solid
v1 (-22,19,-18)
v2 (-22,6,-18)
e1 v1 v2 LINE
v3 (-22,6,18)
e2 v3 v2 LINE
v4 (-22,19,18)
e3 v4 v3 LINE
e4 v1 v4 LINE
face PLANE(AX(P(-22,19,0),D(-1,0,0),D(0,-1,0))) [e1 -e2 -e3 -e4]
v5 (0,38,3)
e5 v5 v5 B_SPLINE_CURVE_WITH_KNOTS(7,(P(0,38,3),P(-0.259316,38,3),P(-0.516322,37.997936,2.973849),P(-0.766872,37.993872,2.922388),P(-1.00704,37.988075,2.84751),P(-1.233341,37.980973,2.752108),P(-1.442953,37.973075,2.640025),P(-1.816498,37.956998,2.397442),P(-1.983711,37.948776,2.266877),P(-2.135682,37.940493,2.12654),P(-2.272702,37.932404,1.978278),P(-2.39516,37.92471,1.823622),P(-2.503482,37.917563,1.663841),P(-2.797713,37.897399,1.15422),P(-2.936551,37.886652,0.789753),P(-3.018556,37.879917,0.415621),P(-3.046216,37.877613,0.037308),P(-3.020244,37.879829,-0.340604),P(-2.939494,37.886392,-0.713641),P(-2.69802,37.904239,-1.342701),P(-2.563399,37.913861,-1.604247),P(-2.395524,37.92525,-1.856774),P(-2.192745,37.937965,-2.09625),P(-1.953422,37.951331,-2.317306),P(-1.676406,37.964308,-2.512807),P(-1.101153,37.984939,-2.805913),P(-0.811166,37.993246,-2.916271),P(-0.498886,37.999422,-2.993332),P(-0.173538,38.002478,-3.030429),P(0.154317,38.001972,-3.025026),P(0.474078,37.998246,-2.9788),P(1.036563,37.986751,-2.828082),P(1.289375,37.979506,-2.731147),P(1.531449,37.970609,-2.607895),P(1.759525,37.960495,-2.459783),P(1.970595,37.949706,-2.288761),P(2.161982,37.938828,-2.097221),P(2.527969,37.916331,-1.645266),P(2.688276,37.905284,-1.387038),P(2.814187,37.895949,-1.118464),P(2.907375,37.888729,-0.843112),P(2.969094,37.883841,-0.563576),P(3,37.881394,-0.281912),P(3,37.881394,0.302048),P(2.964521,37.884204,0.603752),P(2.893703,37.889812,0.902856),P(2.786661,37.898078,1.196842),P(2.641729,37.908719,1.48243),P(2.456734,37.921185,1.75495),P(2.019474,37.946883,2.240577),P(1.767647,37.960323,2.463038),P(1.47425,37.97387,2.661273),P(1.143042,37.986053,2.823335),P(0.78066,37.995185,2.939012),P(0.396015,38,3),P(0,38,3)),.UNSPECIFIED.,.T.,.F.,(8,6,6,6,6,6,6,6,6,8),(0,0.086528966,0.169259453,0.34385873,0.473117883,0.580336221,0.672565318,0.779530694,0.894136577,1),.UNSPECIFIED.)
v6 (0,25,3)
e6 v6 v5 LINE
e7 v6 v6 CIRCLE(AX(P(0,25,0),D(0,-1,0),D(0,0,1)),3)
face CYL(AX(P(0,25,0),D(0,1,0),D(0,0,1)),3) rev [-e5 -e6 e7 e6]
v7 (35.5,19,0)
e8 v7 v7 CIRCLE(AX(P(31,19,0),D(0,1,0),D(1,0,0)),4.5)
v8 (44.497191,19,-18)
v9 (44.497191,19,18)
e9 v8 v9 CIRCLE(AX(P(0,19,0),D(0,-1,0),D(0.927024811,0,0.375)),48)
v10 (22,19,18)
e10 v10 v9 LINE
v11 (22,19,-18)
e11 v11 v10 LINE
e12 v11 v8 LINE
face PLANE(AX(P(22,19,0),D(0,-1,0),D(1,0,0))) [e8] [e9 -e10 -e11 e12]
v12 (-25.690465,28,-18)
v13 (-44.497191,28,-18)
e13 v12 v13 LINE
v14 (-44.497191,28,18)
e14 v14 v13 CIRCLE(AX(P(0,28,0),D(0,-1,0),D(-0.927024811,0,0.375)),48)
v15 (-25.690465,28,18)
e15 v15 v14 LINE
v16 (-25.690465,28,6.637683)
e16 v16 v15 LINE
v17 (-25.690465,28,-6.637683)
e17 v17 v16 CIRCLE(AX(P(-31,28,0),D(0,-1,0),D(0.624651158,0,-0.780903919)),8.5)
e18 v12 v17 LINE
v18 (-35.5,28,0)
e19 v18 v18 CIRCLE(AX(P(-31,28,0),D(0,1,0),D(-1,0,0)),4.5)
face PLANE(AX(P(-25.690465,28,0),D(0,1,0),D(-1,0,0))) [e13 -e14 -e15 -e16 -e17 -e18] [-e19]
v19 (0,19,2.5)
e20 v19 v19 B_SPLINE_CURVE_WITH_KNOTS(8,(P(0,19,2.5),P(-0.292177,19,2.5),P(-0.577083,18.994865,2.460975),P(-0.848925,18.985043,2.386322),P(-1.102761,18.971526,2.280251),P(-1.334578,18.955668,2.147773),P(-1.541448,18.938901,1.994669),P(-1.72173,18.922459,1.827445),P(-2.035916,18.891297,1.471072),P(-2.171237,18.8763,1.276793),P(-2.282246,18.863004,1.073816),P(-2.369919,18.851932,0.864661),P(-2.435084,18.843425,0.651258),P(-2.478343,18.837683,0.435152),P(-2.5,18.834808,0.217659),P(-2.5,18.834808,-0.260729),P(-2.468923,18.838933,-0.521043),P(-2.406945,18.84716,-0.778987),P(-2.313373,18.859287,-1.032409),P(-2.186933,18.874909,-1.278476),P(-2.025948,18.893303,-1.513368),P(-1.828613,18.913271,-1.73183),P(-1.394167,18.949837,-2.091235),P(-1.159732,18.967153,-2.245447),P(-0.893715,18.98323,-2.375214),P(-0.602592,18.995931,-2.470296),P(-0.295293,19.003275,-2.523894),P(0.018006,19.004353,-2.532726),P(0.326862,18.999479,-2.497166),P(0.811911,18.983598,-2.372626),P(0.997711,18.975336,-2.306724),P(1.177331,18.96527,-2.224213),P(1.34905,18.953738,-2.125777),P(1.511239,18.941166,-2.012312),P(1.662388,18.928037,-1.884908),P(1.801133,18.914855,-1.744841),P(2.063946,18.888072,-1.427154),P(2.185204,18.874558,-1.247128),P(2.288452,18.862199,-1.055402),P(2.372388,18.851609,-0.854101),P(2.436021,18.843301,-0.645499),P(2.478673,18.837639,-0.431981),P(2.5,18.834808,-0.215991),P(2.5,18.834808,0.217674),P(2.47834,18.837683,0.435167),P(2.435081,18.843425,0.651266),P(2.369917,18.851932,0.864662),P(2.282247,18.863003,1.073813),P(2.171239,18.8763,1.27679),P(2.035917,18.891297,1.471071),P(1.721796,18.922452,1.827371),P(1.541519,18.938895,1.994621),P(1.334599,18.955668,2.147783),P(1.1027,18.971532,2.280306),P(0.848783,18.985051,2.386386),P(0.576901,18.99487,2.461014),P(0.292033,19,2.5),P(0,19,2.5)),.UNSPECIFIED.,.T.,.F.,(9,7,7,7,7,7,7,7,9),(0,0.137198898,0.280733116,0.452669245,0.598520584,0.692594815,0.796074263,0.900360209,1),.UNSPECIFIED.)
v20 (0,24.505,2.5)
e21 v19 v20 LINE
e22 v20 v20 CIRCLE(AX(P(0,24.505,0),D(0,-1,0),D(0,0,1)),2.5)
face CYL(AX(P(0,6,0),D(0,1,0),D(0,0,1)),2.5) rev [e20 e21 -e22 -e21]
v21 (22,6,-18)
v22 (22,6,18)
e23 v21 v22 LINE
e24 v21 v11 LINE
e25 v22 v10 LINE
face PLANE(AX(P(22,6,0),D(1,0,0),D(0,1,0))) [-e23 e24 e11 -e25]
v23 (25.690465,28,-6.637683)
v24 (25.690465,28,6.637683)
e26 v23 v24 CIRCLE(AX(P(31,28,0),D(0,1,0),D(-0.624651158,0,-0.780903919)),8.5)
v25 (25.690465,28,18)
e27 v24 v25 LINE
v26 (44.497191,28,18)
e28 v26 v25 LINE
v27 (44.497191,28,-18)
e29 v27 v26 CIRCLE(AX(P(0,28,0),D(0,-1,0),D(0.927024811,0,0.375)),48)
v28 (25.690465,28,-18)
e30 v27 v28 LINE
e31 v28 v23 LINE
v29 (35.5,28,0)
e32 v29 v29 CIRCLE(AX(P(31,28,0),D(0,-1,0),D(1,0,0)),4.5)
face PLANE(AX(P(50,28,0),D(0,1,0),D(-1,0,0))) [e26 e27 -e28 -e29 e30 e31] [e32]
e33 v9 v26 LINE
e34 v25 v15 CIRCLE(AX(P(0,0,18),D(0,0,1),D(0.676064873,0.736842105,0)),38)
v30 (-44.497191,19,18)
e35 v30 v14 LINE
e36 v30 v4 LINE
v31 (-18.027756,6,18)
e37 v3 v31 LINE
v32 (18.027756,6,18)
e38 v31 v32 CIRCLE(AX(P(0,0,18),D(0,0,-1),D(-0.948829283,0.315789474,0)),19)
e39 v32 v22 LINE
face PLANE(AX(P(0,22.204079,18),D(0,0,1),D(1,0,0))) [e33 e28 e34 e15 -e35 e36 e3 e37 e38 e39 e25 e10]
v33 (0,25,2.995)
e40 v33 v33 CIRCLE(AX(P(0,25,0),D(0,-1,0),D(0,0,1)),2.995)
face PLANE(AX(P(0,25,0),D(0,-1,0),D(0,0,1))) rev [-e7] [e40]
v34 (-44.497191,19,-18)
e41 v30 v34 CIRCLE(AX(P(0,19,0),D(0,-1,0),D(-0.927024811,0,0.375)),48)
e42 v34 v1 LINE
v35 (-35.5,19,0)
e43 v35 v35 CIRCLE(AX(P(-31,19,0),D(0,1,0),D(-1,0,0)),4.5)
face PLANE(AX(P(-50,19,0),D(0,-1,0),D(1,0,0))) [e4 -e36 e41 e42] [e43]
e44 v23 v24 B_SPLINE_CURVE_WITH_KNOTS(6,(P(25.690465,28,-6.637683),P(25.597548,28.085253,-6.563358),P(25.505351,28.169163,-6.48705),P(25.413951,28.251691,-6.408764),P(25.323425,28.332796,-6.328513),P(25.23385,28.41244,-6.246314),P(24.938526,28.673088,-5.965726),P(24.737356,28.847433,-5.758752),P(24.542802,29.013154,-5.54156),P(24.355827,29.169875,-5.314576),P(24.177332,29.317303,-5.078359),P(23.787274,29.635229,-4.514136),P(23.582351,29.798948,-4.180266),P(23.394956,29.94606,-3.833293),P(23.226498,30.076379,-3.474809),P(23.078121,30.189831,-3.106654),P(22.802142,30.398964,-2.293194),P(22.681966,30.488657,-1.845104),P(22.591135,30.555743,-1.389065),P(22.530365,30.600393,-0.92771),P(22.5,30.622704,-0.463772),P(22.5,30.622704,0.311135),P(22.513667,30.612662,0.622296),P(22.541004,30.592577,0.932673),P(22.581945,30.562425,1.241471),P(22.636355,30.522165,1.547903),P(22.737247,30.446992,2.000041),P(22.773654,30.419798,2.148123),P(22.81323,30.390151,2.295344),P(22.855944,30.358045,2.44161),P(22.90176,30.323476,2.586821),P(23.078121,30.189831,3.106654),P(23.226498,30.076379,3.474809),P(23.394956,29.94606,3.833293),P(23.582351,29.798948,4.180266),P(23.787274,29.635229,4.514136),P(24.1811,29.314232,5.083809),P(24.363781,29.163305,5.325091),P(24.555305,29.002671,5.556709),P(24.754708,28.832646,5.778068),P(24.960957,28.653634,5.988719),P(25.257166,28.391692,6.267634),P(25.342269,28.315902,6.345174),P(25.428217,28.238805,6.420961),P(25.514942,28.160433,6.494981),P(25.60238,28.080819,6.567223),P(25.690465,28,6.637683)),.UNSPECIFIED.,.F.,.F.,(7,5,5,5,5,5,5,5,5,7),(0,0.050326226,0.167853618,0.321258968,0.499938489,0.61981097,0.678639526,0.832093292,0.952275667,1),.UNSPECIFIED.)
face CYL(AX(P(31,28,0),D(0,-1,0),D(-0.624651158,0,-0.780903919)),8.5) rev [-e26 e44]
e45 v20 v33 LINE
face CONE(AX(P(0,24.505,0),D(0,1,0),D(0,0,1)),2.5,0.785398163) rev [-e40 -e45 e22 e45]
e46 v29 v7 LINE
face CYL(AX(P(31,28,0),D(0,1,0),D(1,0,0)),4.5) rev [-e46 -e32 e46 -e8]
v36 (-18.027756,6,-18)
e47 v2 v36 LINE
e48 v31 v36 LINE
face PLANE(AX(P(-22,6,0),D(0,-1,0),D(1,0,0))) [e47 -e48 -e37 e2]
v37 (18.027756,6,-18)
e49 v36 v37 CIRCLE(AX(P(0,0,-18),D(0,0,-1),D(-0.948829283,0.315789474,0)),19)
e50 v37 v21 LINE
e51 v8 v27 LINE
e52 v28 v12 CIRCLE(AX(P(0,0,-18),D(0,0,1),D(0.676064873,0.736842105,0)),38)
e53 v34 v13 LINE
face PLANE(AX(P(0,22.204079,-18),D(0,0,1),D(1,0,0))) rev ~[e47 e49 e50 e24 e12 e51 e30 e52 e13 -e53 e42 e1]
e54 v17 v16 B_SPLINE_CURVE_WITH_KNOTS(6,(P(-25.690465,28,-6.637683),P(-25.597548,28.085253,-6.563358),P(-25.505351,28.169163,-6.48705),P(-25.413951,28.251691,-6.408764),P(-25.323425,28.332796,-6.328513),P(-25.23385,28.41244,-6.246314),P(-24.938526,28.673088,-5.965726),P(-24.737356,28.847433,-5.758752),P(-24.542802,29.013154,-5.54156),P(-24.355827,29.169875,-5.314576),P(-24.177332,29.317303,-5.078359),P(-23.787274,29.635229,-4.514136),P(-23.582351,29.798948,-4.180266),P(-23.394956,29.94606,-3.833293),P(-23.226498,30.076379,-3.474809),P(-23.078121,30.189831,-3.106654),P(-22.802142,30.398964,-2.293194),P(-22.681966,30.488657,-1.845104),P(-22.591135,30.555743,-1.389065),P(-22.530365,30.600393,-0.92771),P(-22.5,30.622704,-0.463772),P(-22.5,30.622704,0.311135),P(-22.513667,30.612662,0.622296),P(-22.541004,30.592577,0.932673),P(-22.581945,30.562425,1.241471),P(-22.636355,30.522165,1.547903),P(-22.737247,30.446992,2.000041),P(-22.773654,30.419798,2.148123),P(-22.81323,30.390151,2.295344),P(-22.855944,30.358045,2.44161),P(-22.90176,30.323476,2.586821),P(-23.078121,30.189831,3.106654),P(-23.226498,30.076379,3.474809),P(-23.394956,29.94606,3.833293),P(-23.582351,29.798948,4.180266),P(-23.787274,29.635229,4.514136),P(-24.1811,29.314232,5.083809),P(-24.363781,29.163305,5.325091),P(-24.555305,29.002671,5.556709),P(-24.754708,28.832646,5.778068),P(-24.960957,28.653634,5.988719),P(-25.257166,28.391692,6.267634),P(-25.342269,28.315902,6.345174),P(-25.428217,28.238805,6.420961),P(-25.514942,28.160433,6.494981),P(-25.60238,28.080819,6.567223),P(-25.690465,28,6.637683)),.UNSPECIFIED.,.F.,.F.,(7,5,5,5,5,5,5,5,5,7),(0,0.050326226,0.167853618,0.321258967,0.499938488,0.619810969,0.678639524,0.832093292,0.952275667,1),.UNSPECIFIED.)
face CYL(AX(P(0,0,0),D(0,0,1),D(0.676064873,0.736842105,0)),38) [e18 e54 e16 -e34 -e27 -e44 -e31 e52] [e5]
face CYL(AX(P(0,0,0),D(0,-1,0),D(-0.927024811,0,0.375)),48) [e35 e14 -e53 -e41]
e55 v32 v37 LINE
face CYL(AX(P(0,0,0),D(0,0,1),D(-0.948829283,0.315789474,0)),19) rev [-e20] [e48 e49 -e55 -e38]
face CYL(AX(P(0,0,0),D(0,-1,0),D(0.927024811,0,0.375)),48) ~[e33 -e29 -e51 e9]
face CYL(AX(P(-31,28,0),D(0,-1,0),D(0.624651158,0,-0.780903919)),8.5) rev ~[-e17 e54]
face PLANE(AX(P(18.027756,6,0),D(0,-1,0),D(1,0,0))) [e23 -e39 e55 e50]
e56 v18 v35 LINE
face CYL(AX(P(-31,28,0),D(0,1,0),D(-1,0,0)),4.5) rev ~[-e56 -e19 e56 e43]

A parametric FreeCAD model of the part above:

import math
import FreeCAD as App
import Part
import Sketcher

V = App.Vector
Q = App.Units.Quantity


def add_polygon(sketch, points):
    """Adds a closed chain of lines whose ends are joined by coincident constraints."""
    first, n = sketch.GeometryCount, len(points)
    for a, b in zip(points, points[1:] + points[:1]):
        sketch.addGeometry(Part.LineSegment(App.Vector(*a, 0), App.Vector(*b, 0)), False)
    for i in range(n):
        sketch.addConstraint(Sketcher.Constraint("Coincident", first + i, 2, first + (i + 1) % n, 1))

doc = App.newDocument("Part")
body = doc.addObject("PartDesign::Body", "Body")

sketch1 = body.newObject("Sketcher::SketchObject", "Sketch")
sketch1.AttachmentSupport = (doc.getObject("XY_Plane"), [""])
sketch1.MapMode = "FlatFace"
sketch1.addGeometry([
    Part.LineSegment(V(18.027756, 6, 0), V(22, 6, 0)),
    Part.LineSegment(V(22, 6, 0), V(22, 19, 0)),
    Part.LineSegment(V(22, 19, 0), V(50, 19, 0)),
    Part.LineSegment(V(50, 19, 0), V(50, 28, 0)),
    Part.LineSegment(V(50, 28, 0), V(25.690465, 28, 0)),
    Part.ArcOfCircle(Part.Circle(V(0, 0, 0), V(0, 0, 1), 38), math.radians(47.463102), math.radians(132.536898)),
    Part.LineSegment(V(-25.690465, 28, 0), V(-50, 28, 0)),
    Part.LineSegment(V(-50, 28, 0), V(-50, 19, 0)),
    Part.LineSegment(V(-50, 19, 0), V(-22, 19, 0)),
    Part.LineSegment(V(-22, 19, 0), V(-22, 6, 0)),
    Part.LineSegment(V(-22, 6, 0), V(-18.027756, 6, 0)),
    Part.ArcOfCircle(Part.Circle(V(0, 0, 0), V(0, 0, 1), 19), math.radians(18.40848), math.radians(161.59152)),
], False)
sketch1.addConstraint([
    Sketcher.Constraint("Coincident", 0, 2, 1, 1),
    Sketcher.Constraint("Coincident", 1, 2, 2, 1),
    Sketcher.Constraint("Coincident", 2, 2, 3, 1),
    Sketcher.Constraint("Coincident", 3, 2, 4, 1),
    Sketcher.Constraint("Coincident", 4, 2, 5, 1),
    Sketcher.Constraint("Coincident", 5, 2, 6, 1),
    Sketcher.Constraint("Coincident", 6, 2, 7, 1),
    Sketcher.Constraint("Coincident", 7, 2, 8, 1),
    Sketcher.Constraint("Coincident", 8, 2, 9, 1),
    Sketcher.Constraint("Coincident", 9, 2, 10, 1),
    Sketcher.Constraint("Coincident", 10, 2, 11, 2),
    Sketcher.Constraint("Coincident", 11, 1, 0, 1),
    Sketcher.Constraint("Horizontal", 0),
    Sketcher.Constraint("Vertical", 1),
    Sketcher.Constraint("Horizontal", 2),
    Sketcher.Constraint("Vertical", 3),
    Sketcher.Constraint("Horizontal", 4),
    Sketcher.Constraint("Horizontal", 6),
    Sketcher.Constraint("Vertical", 7),
    Sketcher.Constraint("Horizontal", 8),
    Sketcher.Constraint("Vertical", 9),
    Sketcher.Constraint("Horizontal", 10),
    Sketcher.Constraint("Coincident", 5, 3, -1, 1),
    Sketcher.Constraint("Coincident", 11, 3, -1, 1),
    Sketcher.Constraint("Symmetric", 3, 2, 6, 2, -2),
    Sketcher.Constraint("Symmetric", 1, 2, 8, 2, -2),
    Sketcher.Constraint("Horizontal", 0, 2, 9, 2),
    Sketcher.Constraint("Radius", 5, Q("38 mm")),
    Sketcher.Constraint("Radius", 11, Q("19 mm")),
    Sketcher.Constraint("DistanceX", 2, 1, 2, 2, Q("28 mm")),
    Sketcher.Constraint("DistanceY", 1, 1, 1, 2, Q("13 mm")),
    Sketcher.Constraint("DistanceY", 3, 1, 3, 2, Q("9 mm")),
    Sketcher.Constraint("DistanceX", -1, 1, 0, 2, Q("22 mm")),
    Sketcher.Constraint("DistanceY", -1, 1, 0, 2, Q("6 mm")),
])
pad1 = body.newObject("PartDesign::Pad", "Pad")
pad1.Profile = sketch1
pad1.Length = 36
pad1.Midplane = True

sketch2 = body.newObject("Sketcher::SketchObject", "Sketch001")
sketch2.AttachmentSupport = (doc.getObject("XZ_Plane"), [""])
sketch2.MapMode = "FlatFace"
sketch2.addGeometry([
    Part.LineSegment(V(-44.497191, -18, 0), V(-50, -18, 0)),
    Part.LineSegment(V(-50, -18, 0), V(-50, 18, 0)),
    Part.LineSegment(V(-50, 18, 0), V(-44.497191, 18, 0)),
    Part.ArcOfCircle(Part.Circle(V(0, 0, 0), V(0, 0, 1), 48), math.radians(157.975687), math.radians(202.024313)),
], False)
sketch2.addConstraint([
    Sketcher.Constraint("Coincident", 0, 2, 1, 1),
    Sketcher.Constraint("Coincident", 1, 2, 2, 1),
    Sketcher.Constraint("Coincident", 2, 2, 3, 1),
    Sketcher.Constraint("Coincident", 3, 2, 0, 1),
    Sketcher.Constraint("Horizontal", 0),
    Sketcher.Constraint("Vertical", 1),
    Sketcher.Constraint("Horizontal", 2),
    Sketcher.Constraint("Coincident", 3, 3, -1, 1),
    Sketcher.Constraint("Vertical", 2, 2, 3, 2),
    Sketcher.Constraint("Radius", 3, Q("48 mm")),
    Sketcher.Constraint("DistanceY", 1, 1, 1, 2, Q("36 mm")),
    Sketcher.Constraint("DistanceX", 0, 2, -1, 1, Q("50 mm")),
])
pocket1 = body.newObject("PartDesign::Pocket", "Pocket")
pocket1.Profile = sketch2
pocket1.Type = "ThroughAll"

sketch3 = body.newObject("Sketcher::SketchObject", "Sketch002")
sketch3.AttachmentSupport = (doc.getObject("XZ_Plane"), [""])
sketch3.MapMode = "FlatFace"
sketch3.AttachmentOffset = App.Placement(V(0, 0, -28), App.Rotation())
sketch3.addGeometry(Part.Circle(V(-31, 0, 0), V(0, 0, 1), 4.5), False)
sketch3.addConstraint([
    Sketcher.Constraint("PointOnObject", 0, 3, -1),
    Sketcher.Constraint("Diameter", 0, Q("9 mm")),
    Sketcher.Constraint("DistanceX", 0, 3, -1, 1, Q("31 mm")),
])
pocket2 = body.newObject("PartDesign::Pocket", "Pocket001")
pocket2.Profile = sketch3
pocket2.Length = 58
pocket2.Reversed = True

sketch4 = body.newObject("Sketcher::SketchObject", "Sketch003")
sketch4.AttachmentSupport = (doc.getObject("XZ_Plane"), [""])
sketch4.MapMode = "FlatFace"
sketch4.AttachmentOffset = App.Placement(V(0, 0, -28), App.Rotation())
sketch4.addGeometry([
    Part.LineSegment(V(-25.690465, -6.637683, 0), V(-25.690465, 6.637683, 0)),
    Part.ArcOfCircle(Part.Circle(V(-31, 0, 0), V(0, 0, 1), 8.5), math.radians(-51.343412), math.radians(51.343412)),
], False)
sketch4.addConstraint([
    Sketcher.Constraint("Coincident", 0, 1, 1, 1),
    Sketcher.Constraint("Coincident", 1, 2, 0, 2),
    Sketcher.Constraint("Vertical", 0),
    Sketcher.Constraint("PointOnObject", 1, 3, -1),
    Sketcher.Constraint("Radius", 1, Q("8.5 mm")),
    Sketcher.Constraint("DistanceX", 1, 3, -1, 1, Q("31 mm")),
    Sketcher.Constraint("DistanceY", 0, 1, 0, 2, Q("13.275367 mm")),
])
pocket3 = body.newObject("PartDesign::Pocket", "Pocket002")
pocket3.Profile = sketch4
pocket3.Length = 64
doc.recompute()

mirrored = body.newObject("PartDesign::Mirrored", "Mirrored")
mirrored.Originals = [pocket1, pocket2, pocket3]
mirrored.MirrorPlane = (doc.getObject("YZ_Plane"), [""])
body.Tip = mirrored

sketch5 = body.newObject("Sketcher::SketchObject", "Sketch004")
sketch5.AttachmentSupport = (doc.getObject("YZ_Plane"), [""])
sketch5.MapMode = "FlatFace"
add_polygon(sketch5, [(6, 0), (38, 0), (38, 3), (25, 3), (25, 2.995), (24.505, 2.5), (6, 2.5)])
sketch5.addConstraint([
    Sketcher.Constraint("Horizontal", 0),
    Sketcher.Constraint("Vertical", 1),
    Sketcher.Constraint("Horizontal", 2),
    Sketcher.Constraint("Vertical", 3),
    Sketcher.Constraint("Horizontal", 5),
    Sketcher.Constraint("Vertical", 6),
    Sketcher.Constraint("PointOnObject", 0, 2, -1),
    Sketcher.Constraint("DistanceX", 0, 1, 0, 2, Q("32 mm")),
    Sketcher.Constraint("DistanceX", 2, 2, 2, 1, Q("13 mm")),
    Sketcher.Constraint("DistanceY", 1, 1, 1, 2, Q("3 mm")),
    Sketcher.Constraint("Angle", 4, Q("-135 deg")),
    Sketcher.Constraint("DistanceY", 6, 2, 6, 1, Q("2.5 mm")),
    Sketcher.Constraint("DistanceX", -1, 1, 0, 2, Q("38 mm")),
    Sketcher.Constraint("DistanceX", 5, 2, 5, 1, Q("18.505 mm")),
])
groove = body.newObject("PartDesign::Groove", "Groove")
groove.Profile = sketch5
groove.ReferenceAxis = (sketch5, ["H_Axis"])
groove.Angle = 360

doc.recompute()
